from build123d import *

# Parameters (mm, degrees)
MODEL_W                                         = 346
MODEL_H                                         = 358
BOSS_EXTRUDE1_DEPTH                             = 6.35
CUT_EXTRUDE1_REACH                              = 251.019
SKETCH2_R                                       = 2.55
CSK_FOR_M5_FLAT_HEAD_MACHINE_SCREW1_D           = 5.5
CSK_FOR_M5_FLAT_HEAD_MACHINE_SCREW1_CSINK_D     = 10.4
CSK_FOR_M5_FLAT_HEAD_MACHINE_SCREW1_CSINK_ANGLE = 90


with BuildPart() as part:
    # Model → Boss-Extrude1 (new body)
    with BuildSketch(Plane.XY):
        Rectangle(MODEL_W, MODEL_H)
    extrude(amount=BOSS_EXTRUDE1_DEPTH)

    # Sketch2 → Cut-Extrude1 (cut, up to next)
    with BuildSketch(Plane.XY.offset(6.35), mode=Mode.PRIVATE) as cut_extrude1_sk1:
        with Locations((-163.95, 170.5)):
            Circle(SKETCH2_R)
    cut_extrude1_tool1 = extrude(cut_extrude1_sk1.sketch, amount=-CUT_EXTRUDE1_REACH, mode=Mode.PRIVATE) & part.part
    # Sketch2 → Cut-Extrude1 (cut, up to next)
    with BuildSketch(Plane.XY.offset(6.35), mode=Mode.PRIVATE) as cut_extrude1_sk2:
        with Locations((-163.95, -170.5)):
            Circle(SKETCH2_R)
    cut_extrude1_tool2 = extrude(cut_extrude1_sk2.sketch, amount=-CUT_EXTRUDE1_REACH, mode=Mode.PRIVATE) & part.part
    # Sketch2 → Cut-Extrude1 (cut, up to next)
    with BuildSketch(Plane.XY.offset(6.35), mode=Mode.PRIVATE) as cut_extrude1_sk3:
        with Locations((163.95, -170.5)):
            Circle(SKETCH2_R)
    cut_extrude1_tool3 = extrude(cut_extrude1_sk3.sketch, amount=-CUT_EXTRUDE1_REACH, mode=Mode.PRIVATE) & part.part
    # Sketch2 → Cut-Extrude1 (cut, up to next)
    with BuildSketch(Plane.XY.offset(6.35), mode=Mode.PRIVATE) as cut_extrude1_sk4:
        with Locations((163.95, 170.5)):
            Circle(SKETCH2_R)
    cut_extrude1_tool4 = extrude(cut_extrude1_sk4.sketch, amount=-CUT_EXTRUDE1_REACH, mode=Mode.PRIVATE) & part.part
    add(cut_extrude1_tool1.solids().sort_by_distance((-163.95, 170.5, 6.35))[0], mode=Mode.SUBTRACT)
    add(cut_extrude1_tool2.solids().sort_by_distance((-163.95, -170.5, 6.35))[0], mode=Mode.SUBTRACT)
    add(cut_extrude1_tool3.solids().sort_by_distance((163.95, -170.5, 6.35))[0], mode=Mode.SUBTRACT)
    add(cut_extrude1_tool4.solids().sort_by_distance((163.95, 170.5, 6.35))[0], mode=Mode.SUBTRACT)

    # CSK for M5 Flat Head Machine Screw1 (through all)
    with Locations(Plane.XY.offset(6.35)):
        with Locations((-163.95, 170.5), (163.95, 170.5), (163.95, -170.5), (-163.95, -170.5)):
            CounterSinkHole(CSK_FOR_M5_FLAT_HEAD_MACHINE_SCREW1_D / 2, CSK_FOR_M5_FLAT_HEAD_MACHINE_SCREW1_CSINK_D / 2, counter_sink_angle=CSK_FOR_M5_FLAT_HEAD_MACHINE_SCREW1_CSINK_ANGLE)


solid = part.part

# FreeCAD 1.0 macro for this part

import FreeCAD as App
import Part
import Sketcher

V = App.Vector

doc = App.newDocument("Part")
body = doc.addObject("PartDesign::Body", "Body")

sketch1 = body.newObject("Sketcher::SketchObject", "Sketch")
sketch1.AttachmentSupport = (doc.getObject("XY_Plane"), [""])
sketch1.MapMode = "FlatFace"
sketch1.addGeometry([
    Part.LineSegment(V(-173, 179, 0), V(-173, -179, 0)),
    Part.LineSegment(V(-173, -179, 0), V(173, -179, 0)),
    Part.LineSegment(V(173, -179, 0), V(173, 179, 0)),
    Part.LineSegment(V(173, 179, 0), V(-173, 179, 0)),
], False)
sketch1.addConstraint([
    Sketcher.Constraint("Coincident", 0, 2, 1, 1),
    Sketcher.Constraint("Coincident", 1, 2, 2, 1),
    Sketcher.Constraint("Coincident", 2, 2, 3, 1),
    Sketcher.Constraint("Coincident", 3, 2, 0, 1),
    Sketcher.Constraint("Vertical", 0),
    Sketcher.Constraint("Horizontal", 1),
    Sketcher.Constraint("Vertical", 2),
    Sketcher.Constraint("Horizontal", 3),
    Sketcher.Constraint("Symmetric", 0, 2, 2, 2, -1, 1),
    Sketcher.Constraint("DistanceX", 1, 1, 1, 2, 346.0),
    Sketcher.Constraint("DistanceY", 0, 2, 0, 1, 358.0),
])
pad1 = body.newObject("PartDesign::Pad", "Pad")
pad1.Profile = sketch1
pad1.Length = 6.35

sketch2 = body.newObject("Sketcher::SketchObject", "Sketch001")
sketch2.AttachmentSupport = (doc.getObject("XY_Plane"), [""])
sketch2.MapMode = "FlatFace"
sketch2.AttachmentOffset = App.Placement(V(0, 0, 6.35), App.Rotation())
sketch2.addGeometry(Part.Circle(V(-163.9, 170.5, 0), V(0, 0, 1), 2.5), False)
sketch2.addConstraint([
    Sketcher.Constraint("Diameter", 0, 5.1),
    Sketcher.Constraint("DistanceY", -1, 1, 0, 3, 170.5),
    Sketcher.Constraint("DistanceX", 0, 3, -1, 1, 163.95),
])
pocket1 = body.newObject("PartDesign::Pocket", "Pocket")
pocket1.Profile = sketch2
pocket1.Type = "UpToFirst"

sketch3 = body.newObject("Sketcher::SketchObject", "Sketch002")
sketch3.AttachmentSupport = (doc.getObject("XY_Plane"), [""])
sketch3.MapMode = "FlatFace"
sketch3.AttachmentOffset = App.Placement(V(0, 0, 6.35), App.Rotation())
sketch3.addGeometry(Part.Circle(V(-163.9, -170.5, 0), V(0, 0, 1), 2.5), False)
sketch3.addConstraint([
    Sketcher.Constraint("Diameter", 0, 5.1),
    Sketcher.Constraint("DistanceY", 0, 3, -1, 1, 170.5),
    Sketcher.Constraint("DistanceX", 0, 3, -1, 1, 163.95),
])
pocket2 = body.newObject("PartDesign::Pocket", "Pocket001")
pocket2.Profile = sketch3
pocket2.Type = "UpToFirst"

sketch4 = body.newObject("Sketcher::SketchObject", "Sketch003")
sketch4.AttachmentSupport = (doc.getObject("XY_Plane"), [""])
sketch4.MapMode = "FlatFace"
sketch4.AttachmentOffset = App.Placement(V(0, 0, 6.35), App.Rotation())
sketch4.addGeometry(Part.Circle(V(163.9, -170.5, 0), V(0, 0, 1), 2.5), False)
sketch4.addConstraint([
    Sketcher.Constraint("Diameter", 0, 5.1),
    Sketcher.Constraint("DistanceY", 0, 3, -1, 1, 170.5),
    Sketcher.Constraint("DistanceX", -1, 1, 0, 3, 163.95),
])
pocket3 = body.newObject("PartDesign::Pocket", "Pocket002")
pocket3.Profile = sketch4
pocket3.Type = "UpToFirst"

sketch5 = body.newObject("Sketcher::SketchObject", "Sketch004")
sketch5.AttachmentSupport = (doc.getObject("XY_Plane"), [""])
sketch5.MapMode = "FlatFace"
sketch5.AttachmentOffset = App.Placement(V(0, 0, 6.35), App.Rotation())
sketch5.addGeometry(Part.Circle(V(163.9, 170.5, 0), V(0, 0, 1), 2.5), False)
sketch5.addConstraint([
    Sketcher.Constraint("Diameter", 0, 5.1),
    Sketcher.Constraint("DistanceY", -1, 1, 0, 3, 170.5),
    Sketcher.Constraint("DistanceX", -1, 1, 0, 3, 163.95),
])
pocket4 = body.newObject("PartDesign::Pocket", "Pocket003")
pocket4.Profile = sketch5
pocket4.Type = "UpToFirst"

sketch6 = body.newObject("Sketcher::SketchObject", "Sketch005")
sketch6.AttachmentSupport = (doc.getObject("XY_Plane"), [""])
sketch6.MapMode = "FlatFace"
sketch6.AttachmentOffset = App.Placement(V(0, 0, 6.35), App.Rotation())
sketch6.addGeometry([
    Part.Circle(V(-163.9, 170.5, 0), V(0, 0, 1), 2.8),
    Part.Circle(V(163.9, 170.5, 0), V(0, 0, 1), 2.8),
    Part.Circle(V(163.9, -170.5, 0), V(0, 0, 1), 2.8),
    Part.Circle(V(-163.9, -170.5, 0), V(0, 0, 1), 2.8),
], False)
sketch6.addConstraint([
    Sketcher.Constraint("Equal", 0, 1),
    Sketcher.Constraint("Equal", 1, 2),
    Sketcher.Constraint("Equal", 2, 3),
    Sketcher.Constraint("Symmetric", 0, 3, 2, 3, -1, 1),
    Sketcher.Constraint("Symmetric", 1, 3, 3, 3, -1, 1),
    Sketcher.Constraint("Symmetric", 0, 3, 1, 3, -2),
    Sketcher.Constraint("Diameter", 0, 5.5),
    Sketcher.Constraint("DistanceY", 2, 3, 1, 3, 341.0),
    Sketcher.Constraint("DistanceX", 0, 3, 1, 3, 327.9),
])
doc.recompute()
hole = body.newObject("PartDesign::Hole", "Hole")
hole.Profile = sketch6
hole.ThreadType = "None"
hole.Diameter = 5.5
hole.DepthType = "ThroughAll"
hole.HoleCutType = "Countersink"
hole.HoleCutDiameter = 10.4
hole.HoleCutCountersinkAngle = 90

doc.recompute()
